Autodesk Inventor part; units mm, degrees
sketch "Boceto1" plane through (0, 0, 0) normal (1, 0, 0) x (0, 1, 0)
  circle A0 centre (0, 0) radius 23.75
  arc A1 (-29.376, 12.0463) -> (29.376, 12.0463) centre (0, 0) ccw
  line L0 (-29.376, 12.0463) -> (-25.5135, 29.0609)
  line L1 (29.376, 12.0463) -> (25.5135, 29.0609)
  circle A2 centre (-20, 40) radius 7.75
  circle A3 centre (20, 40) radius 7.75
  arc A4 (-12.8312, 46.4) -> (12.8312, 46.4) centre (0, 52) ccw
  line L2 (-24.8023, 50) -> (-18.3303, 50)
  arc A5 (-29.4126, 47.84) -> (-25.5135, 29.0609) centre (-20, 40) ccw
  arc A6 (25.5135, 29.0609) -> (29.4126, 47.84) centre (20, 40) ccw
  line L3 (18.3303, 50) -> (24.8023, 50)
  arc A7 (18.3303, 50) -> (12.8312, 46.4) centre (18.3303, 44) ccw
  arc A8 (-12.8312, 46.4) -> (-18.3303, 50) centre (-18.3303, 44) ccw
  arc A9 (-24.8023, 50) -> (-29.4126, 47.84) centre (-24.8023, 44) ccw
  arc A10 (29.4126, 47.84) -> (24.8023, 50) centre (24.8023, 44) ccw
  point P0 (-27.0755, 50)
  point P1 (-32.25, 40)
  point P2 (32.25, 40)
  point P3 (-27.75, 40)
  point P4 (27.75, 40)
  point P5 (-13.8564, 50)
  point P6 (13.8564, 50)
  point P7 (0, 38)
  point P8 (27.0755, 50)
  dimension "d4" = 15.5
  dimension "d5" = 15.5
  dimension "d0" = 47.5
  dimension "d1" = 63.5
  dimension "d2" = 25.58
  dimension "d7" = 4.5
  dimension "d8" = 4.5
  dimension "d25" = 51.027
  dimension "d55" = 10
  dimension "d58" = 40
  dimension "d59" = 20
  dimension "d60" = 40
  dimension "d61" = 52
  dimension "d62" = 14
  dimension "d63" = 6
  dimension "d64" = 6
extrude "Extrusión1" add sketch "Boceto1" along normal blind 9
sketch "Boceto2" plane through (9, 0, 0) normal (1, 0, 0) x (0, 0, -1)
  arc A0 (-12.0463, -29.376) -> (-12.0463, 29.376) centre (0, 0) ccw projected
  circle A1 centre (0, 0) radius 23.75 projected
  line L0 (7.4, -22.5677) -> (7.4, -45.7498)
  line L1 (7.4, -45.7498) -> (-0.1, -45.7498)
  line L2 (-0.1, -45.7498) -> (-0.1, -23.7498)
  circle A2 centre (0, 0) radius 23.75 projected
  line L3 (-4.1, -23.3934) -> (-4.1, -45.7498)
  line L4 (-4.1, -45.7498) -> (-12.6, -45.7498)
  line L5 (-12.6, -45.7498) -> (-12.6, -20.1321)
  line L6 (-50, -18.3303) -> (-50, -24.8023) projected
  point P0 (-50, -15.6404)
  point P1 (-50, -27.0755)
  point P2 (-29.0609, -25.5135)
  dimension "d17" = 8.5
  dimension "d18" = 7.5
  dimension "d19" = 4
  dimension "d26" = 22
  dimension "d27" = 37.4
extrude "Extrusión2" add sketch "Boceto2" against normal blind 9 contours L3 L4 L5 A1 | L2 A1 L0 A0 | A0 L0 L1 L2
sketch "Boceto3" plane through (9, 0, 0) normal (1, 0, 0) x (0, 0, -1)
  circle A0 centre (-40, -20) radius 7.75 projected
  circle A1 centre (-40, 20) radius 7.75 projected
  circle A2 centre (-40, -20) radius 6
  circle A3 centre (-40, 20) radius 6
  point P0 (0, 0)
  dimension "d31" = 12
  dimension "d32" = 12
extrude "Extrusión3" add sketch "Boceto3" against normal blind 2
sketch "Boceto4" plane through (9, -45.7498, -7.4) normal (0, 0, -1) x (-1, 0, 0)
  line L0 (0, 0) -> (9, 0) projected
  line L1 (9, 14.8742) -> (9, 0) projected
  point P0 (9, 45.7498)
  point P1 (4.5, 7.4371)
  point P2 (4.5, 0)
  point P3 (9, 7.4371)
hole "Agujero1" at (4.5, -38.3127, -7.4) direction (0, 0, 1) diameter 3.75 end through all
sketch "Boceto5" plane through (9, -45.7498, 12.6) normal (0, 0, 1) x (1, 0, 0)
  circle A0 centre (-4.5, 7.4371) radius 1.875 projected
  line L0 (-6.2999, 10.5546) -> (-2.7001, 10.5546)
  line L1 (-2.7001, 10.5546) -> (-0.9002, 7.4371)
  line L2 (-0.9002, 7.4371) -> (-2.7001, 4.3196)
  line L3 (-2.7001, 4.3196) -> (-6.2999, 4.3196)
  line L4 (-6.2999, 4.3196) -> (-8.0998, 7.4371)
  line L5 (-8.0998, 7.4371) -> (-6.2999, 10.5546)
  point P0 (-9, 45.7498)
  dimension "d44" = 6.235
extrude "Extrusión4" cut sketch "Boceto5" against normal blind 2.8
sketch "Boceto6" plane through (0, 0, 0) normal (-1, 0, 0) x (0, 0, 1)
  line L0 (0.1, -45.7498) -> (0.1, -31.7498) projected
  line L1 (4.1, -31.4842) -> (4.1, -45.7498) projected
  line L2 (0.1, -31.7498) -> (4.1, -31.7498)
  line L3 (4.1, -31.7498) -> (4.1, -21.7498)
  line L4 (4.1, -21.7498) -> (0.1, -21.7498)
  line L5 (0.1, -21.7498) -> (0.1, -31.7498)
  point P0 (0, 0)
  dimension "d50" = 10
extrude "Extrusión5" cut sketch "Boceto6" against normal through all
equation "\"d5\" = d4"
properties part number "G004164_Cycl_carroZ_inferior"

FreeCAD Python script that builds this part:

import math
import FreeCAD as App
import Part
import Sketcher
from FreeCAD import Vector
Q = App.Units.Quantity

doc = App.newDocument("Part")
body = doc.addObject("PartDesign::Body", "Body")

sketch1 = body.newObject("Sketcher::SketchObject", "Sketch")
sketch1.AttachmentSupport = (doc.getObject("YZ_Plane"), [""])
sketch1.MapMode = "FlatFace"
sketch1.addGeometry([
    Part.LineSegment(Vector(-26, 29, 0), Vector(-29, 12, 0)),
    Part.ArcOfCircle(Part.Circle(Vector(0, 0, 0), Vector(0, 0, 1), 32), math.radians(158), math.radians(382)),
    Part.LineSegment(Vector(29, 12, 0), Vector(26, 29, 0)),
    Part.ArcOfCircle(Part.Circle(Vector(20, 40, 0), Vector(0, 0, 1), 12), math.radians(-63), math.radians(40)),
    Part.ArcOfCircle(Part.Circle(Vector(25, 44, 0), Vector(0, 0, 1), 6), math.radians(40), math.radians(90)),
    Part.LineSegment(Vector(25, 50, 0), Vector(18, 50, 0)),
    Part.ArcOfCircle(Part.Circle(Vector(18, 44, 0), Vector(0, 0, 1), 6), math.radians(90), math.radians(156)),
    Part.ArcOfCircle(Part.Circle(Vector(0, 52, 0), Vector(0, 0, 1), 14), math.radians(-156), math.radians(-24)),
    Part.ArcOfCircle(Part.Circle(Vector(-18, 44, 0), Vector(0, 0, 1), 6), math.radians(24), math.radians(90)),
    Part.LineSegment(Vector(-18, 50, 0), Vector(-25, 50, 0)),
    Part.ArcOfCircle(Part.Circle(Vector(-25, 44, 0), Vector(0, 0, 1), 6), math.radians(90), math.radians(140)),
    Part.ArcOfCircle(Part.Circle(Vector(-20, 40, 0), Vector(0, 0, 1), 12), math.radians(140), math.radians(243)),
    Part.Circle(Vector(0, 0, 0), Vector(0, 0, 1), 24),
    Part.Circle(Vector(-20, 40, 0), Vector(0, 0, 1), 8),
    Part.Circle(Vector(20, 40, 0), Vector(0, 0, 1), 8),
], False)
sketch1.addConstraint([
    Sketcher.Constraint("Coincident", 0, 2, 1, 1),
    Sketcher.Constraint("Coincident", 1, 2, 2, 1),
    Sketcher.Constraint("Coincident", 2, 2, 3, 1),
    Sketcher.Constraint("Tangent", 3, 2, 4, 1),
    Sketcher.Constraint("Tangent", 4, 2, 5, 1),
    Sketcher.Constraint("Tangent", 5, 2, 6, 1),
    Sketcher.Constraint("Tangent", 6, 2, 7, 2),
    Sketcher.Constraint("Tangent", 7, 1, 8, 1),
    Sketcher.Constraint("Tangent", 8, 2, 9, 1),
    Sketcher.Constraint("Tangent", 9, 2, 10, 1),
    Sketcher.Constraint("Tangent", 10, 2, 11, 1),
    Sketcher.Constraint("Coincident", 11, 2, 0, 1),
    Sketcher.Constraint("Horizontal", 5),
    Sketcher.Constraint("Horizontal", 9),
    Sketcher.Constraint("Coincident", 1, 3, -1, 1),
    Sketcher.Constraint("Coincident", 12, 3, -1, 1),
    Sketcher.Constraint("Coincident", 13, 3, 11, 3),
    Sketcher.Constraint("Coincident", 14, 3, 3, 3),
    Sketcher.Constraint("Equal", 4, 6),
    Sketcher.Constraint("Equal", 6, 8),
    Sketcher.Constraint("Equal", 8, 10),
    Sketcher.Constraint("Equal", 3, 11),
    Sketcher.Constraint("Equal", 13, 14),
    Sketcher.Constraint("Symmetric", 6, 3, 8, 3, -2),
    Sketcher.Constraint("Symmetric", 3, 3, 11, 3, -2),
    Sketcher.Constraint("Horizontal", 0, 2, 1, 2),
    Sketcher.Constraint("Horizontal", 2, 2, 11, 2),
    Sketcher.Constraint("Radius", 4, Q("6 mm")),
    Sketcher.Constraint("Radius", 7, Q("14 mm")),
    Sketcher.Constraint("Diameter", 12, Q("47.5 mm")),
    Sketcher.Constraint("Diameter", 13, Q("15.5 mm")),
    Sketcher.Constraint("Radius", 1, Q("31.75 mm")),
    Sketcher.Constraint("DistanceX", -1, 1, 3, 3, Q("20 mm")),
    Sketcher.Constraint("DistanceY", -1, 1, 3, 3, Q("40 mm")),
    Sketcher.Constraint("DistanceY", -1, 1, 7, 3, Q("52 mm")),
    Sketcher.Constraint("DistanceY", 3, 3, 4, 2, Q("10 mm")),
    Sketcher.Constraint("Radius", 3, Q("12.25 mm")),
    Sketcher.Constraint("Angle", 0, Q("-102.79 deg")),
    Sketcher.Constraint("DistanceX", 0, 2, -1, 1, Q("29.376 mm")),
])
pad1 = body.newObject("PartDesign::Pad", "Pad")
pad1.Profile = sketch1
pad1.Length = 9

sketch2 = body.newObject("Sketcher::SketchObject", "Sketch001")
sketch2.AttachmentSupport = (doc.getObject("YZ_Plane"), [""])
sketch2.MapMode = "FlatFace"
sketch2.AttachmentOffset = App.Placement(Vector(0, 0, 9), App.Rotation())
sketch2.addGeometry([
    Part.LineSegment(Vector(-46, 4, 0), Vector(-23, 4, 0)),
    Part.ArcOfCircle(Part.Circle(Vector(0, 0, 0), Vector(0, 0, 1), 24), math.radians(148), math.radians(170)),
    Part.LineSegment(Vector(-20, 13, 0), Vector(-46, 13, 0)),
    Part.LineSegment(Vector(-46, 13, 0), Vector(-46, 4, 0)),
    Part.LineSegment(Vector(-24, 0, 0), Vector(-46, 0, 0)),
    Part.LineSegment(Vector(-46, 0, 0), Vector(-46, -7, 0)),
    Part.LineSegment(Vector(-46, -7, 0), Vector(-23, -7, 0)),
    Part.ArcOfCircle(Part.Circle(Vector(0, 0, 0), Vector(0, 0, 1), 24), math.radians(179.76), math.radians(198.15)),
], False)
sketch2.addConstraint([
    Sketcher.Constraint("Coincident", 0, 2, 1, 2),
    Sketcher.Constraint("Coincident", 1, 1, 2, 1),
    Sketcher.Constraint("Coincident", 2, 2, 3, 1),
    Sketcher.Constraint("Coincident", 3, 2, 0, 1),
    Sketcher.Constraint("Coincident", 4, 2, 5, 1),
    Sketcher.Constraint("Coincident", 5, 2, 6, 1),
    Sketcher.Constraint("Coincident", 6, 2, 7, 2),
    Sketcher.Constraint("Coincident", 7, 1, 4, 1),
    Sketcher.Constraint("Horizontal", 0),
    Sketcher.Constraint("Horizontal", 2),
    Sketcher.Constraint("Vertical", 3),
    Sketcher.Constraint("Horizontal", 4),
    Sketcher.Constraint("Vertical", 5),
    Sketcher.Constraint("Horizontal", 6),
    Sketcher.Constraint("Coincident", 1, 3, -1, 1),
    Sketcher.Constraint("Coincident", 7, 3, -1, 1),
    Sketcher.Constraint("Equal", 1, 7),
    Sketcher.Constraint("Vertical", 3, 2, 4, 2),
    Sketcher.Constraint("DistanceX", 4, 2, 4, 1, Q("22 mm")),
    Sketcher.Constraint("DistanceY", 3, 2, 3, 1, Q("8.5 mm")),
    Sketcher.Constraint("DistanceY", 5, 2, 5, 1, Q("7.5 mm")),
    Sketcher.Constraint("DistanceY", 4, 2, 3, 2, Q("4 mm")),
    Sketcher.Constraint("Radius", 1, Q("23.75 mm")),
    Sketcher.Constraint("DistanceY", -1, 1, 0, 2, Q("4.1 mm")),
])
pad2 = body.newObject("PartDesign::Pad", "Pad001")
pad2.Profile = sketch2
pad2.Length = 9
pad2.Reversed = True

sketch3 = body.newObject("Sketcher::SketchObject", "Sketch002")
sketch3.AttachmentSupport = (doc.getObject("YZ_Plane"), [""])
sketch3.MapMode = "FlatFace"
sketch3.AttachmentOffset = App.Placement(Vector(0, 0, 9), App.Rotation())
sketch3.addGeometry([
    Part.Circle(Vector(-20, 40, 0), Vector(0, 0, 1), 8),
    Part.Circle(Vector(-20, 40, 0), Vector(0, 0, 1), 6),
    Part.Circle(Vector(20, 40, 0), Vector(0, 0, 1), 8),
    Part.Circle(Vector(20, 40, 0), Vector(0, 0, 1), 6),
], False)
sketch3.addConstraint([
    Sketcher.Constraint("Coincident", 1, 3, 0, 3),
    Sketcher.Constraint("Coincident", 3, 3, 2, 3),
    Sketcher.Constraint("Equal", 0, 2),
    Sketcher.Constraint("Equal", 1, 3),
    Sketcher.Constraint("Symmetric", 0, 3, 2, 3, -2),
    Sketcher.Constraint("Diameter", 1, Q("12 mm")),
    Sketcher.Constraint("Diameter", 0, Q("15.5 mm")),
    Sketcher.Constraint("DistanceX", 0, 3, -1, 1, Q("20 mm")),
    Sketcher.Constraint("DistanceY", -1, 1, 0, 3, Q("40 mm")),
])
pad3 = body.newObject("PartDesign::Pad", "Pad002")
pad3.Profile = sketch3
pad3.Length = 2
pad3.Reversed = True

sketch4 = body.newObject("Sketcher::SketchObject", "Sketch003")
sketch4.AttachmentSupport = (doc.getObject("XY_Plane"), [""])
sketch4.MapMode = "FlatFace"
sketch4.AttachmentOffset = App.Placement(Vector(0, 0, -7.4), App.Rotation())
sketch4.addGeometry(Part.Circle(Vector(4.5, -38.3, 0), Vector(0, 0, 1), 1.9), False)
sketch4.addConstraint([
    Sketcher.Constraint("Diameter", 0, Q("3.75 mm")),
    Sketcher.Constraint("DistanceX", -1, 1, 0, 3, Q("4.5 mm")),
    Sketcher.Constraint("DistanceY", 0, 3, -1, 1, Q("38.3127 mm")),
])
doc.recompute()
hole = body.newObject("PartDesign::Hole", "Hole")
hole.Profile = sketch4
hole.ThreadType = "None"
hole.Diameter = 3.75
hole.DepthType = "ThroughAll"
hole.Reversed = True

sketch5 = body.newObject("Sketcher::SketchObject", "Sketch004")
sketch5.AttachmentSupport = (doc.getObject("XY_Plane"), [""])
sketch5.MapMode = "FlatFace"
sketch5.AttachmentOffset = App.Placement(Vector(0, 0, 12.6), App.Rotation())
sketch5.addGeometry([
    Part.LineSegment(Vector(6.3, -35.2, 0), Vector(2.7, -35.2, 0)),
    Part.LineSegment(Vector(2.7, -35.2, 0), Vector(0.9, -38.3, 0)),
    Part.LineSegment(Vector(0.9, -38.3, 0), Vector(2.7, -41.4, 0)),
    Part.LineSegment(Vector(2.7, -41.4, 0), Vector(6.3, -41.4, 0)),
    Part.LineSegment(Vector(6.3, -41.4, 0), Vector(8.1, -38.3, 0)),
    Part.LineSegment(Vector(8.1, -38.3, 0), Vector(6.3, -35.2, 0)),
    Part.Circle(Vector(4.5, -38.3, 0), Vector(0, 0, 1), 1.9),
], False)
sketch5.addConstraint([
    Sketcher.Constraint("Coincident", 0, 2, 1, 1),
    Sketcher.Constraint("Coincident", 1, 2, 2, 1),
    Sketcher.Constraint("Coincident", 2, 2, 3, 1),
    Sketcher.Constraint("Coincident", 3, 2, 4, 1),
    Sketcher.Constraint("Coincident", 4, 2, 5, 1),
    Sketcher.Constraint("Coincident", 5, 2, 0, 1),
    Sketcher.Constraint("Horizontal", 0),
    Sketcher.Constraint("Horizontal", 3),
    Sketcher.Constraint("Parallel", 1, 4),
    Sketcher.Constraint("Parallel", 2, 5),
    Sketcher.Constraint("Horizontal", 6, 3, 1, 2),
    Sketcher.Constraint("Horizontal", 1, 2, 4, 2),
    Sketcher.Constraint("Vertical", 0, 2, 2, 2),
    Sketcher.Constraint("Vertical", 3, 2, 5, 2),
    Sketcher.Constraint("Diameter", 6, Q("3.75 mm")),
    Sketcher.Constraint("Angle", 1, Q("-120.0001 deg")),
    Sketcher.Constraint("DistanceY", 2, 2, 0, 2, Q("6.235 mm")),
    Sketcher.Constraint("DistanceX", -1, 1, 6, 3, Q("4.5 mm")),
    Sketcher.Constraint("DistanceX", -1, 1, 0, 2, Q("2.7 mm")),
    Sketcher.Constraint("DistanceX", -1, 1, 3, 2, Q("6.3 mm")),
    Sketcher.Constraint("DistanceY", 6, 3, -1, 1, Q("38.3127 mm")),
])
pocket1 = body.newObject("PartDesign::Pocket", "Pocket")
pocket1.Profile = sketch5
pocket1.Length = 2.8

sketch6 = body.newObject("Sketcher::SketchObject", "Sketch005")
sketch6.AttachmentSupport = (doc.getObject("YZ_Plane"), [""])
sketch6.MapMode = "FlatFace"
sketch6.addGeometry([
    Part.LineSegment(Vector(-31.7, 4.1, 0), Vector(-21.7, 4.1, 0)),
    Part.LineSegment(Vector(-21.7, 4.1, 0), Vector(-21.7, 0.1, 0)),
    Part.LineSegment(Vector(-21.7, 0.1, 0), Vector(-31.7, 0.1, 0)),
    Part.LineSegment(Vector(-31.7, 0.1, 0), Vector(-31.7, 4.1, 0)),
], False)
sketch6.addConstraint([
    Sketcher.Constraint("Coincident", 0, 2, 1, 1),
    Sketcher.Constraint("Coincident", 1, 2, 2, 1),
    Sketcher.Constraint("Coincident", 2, 2, 3, 1),
    Sketcher.Constraint("Coincident", 3, 2, 0, 1),
    Sketcher.Constraint("Horizontal", 0),
    Sketcher.Constraint("Vertical", 1),
    Sketcher.Constraint("Horizontal", 2),
    Sketcher.Constraint("Vertical", 3),
    Sketcher.Constraint("DistanceX", 0, 1, 0, 2, Q("10 mm")),
    Sketcher.Constraint("DistanceY", 1, 2, 1, 1, Q("4 mm")),
    Sketcher.Constraint("DistanceY", -1, 1, 0, 2, Q("4.1 mm")),
    Sketcher.Constraint("DistanceX", 0, 2, -1, 1, Q("21.7498 mm")),
])
pocket2 = body.newObject("PartDesign::Pocket", "Pocket001")
pocket2.Profile = sketch6
pocket2.Type = "ThroughAll"
pocket2.Reversed = True

doc.recompute()
